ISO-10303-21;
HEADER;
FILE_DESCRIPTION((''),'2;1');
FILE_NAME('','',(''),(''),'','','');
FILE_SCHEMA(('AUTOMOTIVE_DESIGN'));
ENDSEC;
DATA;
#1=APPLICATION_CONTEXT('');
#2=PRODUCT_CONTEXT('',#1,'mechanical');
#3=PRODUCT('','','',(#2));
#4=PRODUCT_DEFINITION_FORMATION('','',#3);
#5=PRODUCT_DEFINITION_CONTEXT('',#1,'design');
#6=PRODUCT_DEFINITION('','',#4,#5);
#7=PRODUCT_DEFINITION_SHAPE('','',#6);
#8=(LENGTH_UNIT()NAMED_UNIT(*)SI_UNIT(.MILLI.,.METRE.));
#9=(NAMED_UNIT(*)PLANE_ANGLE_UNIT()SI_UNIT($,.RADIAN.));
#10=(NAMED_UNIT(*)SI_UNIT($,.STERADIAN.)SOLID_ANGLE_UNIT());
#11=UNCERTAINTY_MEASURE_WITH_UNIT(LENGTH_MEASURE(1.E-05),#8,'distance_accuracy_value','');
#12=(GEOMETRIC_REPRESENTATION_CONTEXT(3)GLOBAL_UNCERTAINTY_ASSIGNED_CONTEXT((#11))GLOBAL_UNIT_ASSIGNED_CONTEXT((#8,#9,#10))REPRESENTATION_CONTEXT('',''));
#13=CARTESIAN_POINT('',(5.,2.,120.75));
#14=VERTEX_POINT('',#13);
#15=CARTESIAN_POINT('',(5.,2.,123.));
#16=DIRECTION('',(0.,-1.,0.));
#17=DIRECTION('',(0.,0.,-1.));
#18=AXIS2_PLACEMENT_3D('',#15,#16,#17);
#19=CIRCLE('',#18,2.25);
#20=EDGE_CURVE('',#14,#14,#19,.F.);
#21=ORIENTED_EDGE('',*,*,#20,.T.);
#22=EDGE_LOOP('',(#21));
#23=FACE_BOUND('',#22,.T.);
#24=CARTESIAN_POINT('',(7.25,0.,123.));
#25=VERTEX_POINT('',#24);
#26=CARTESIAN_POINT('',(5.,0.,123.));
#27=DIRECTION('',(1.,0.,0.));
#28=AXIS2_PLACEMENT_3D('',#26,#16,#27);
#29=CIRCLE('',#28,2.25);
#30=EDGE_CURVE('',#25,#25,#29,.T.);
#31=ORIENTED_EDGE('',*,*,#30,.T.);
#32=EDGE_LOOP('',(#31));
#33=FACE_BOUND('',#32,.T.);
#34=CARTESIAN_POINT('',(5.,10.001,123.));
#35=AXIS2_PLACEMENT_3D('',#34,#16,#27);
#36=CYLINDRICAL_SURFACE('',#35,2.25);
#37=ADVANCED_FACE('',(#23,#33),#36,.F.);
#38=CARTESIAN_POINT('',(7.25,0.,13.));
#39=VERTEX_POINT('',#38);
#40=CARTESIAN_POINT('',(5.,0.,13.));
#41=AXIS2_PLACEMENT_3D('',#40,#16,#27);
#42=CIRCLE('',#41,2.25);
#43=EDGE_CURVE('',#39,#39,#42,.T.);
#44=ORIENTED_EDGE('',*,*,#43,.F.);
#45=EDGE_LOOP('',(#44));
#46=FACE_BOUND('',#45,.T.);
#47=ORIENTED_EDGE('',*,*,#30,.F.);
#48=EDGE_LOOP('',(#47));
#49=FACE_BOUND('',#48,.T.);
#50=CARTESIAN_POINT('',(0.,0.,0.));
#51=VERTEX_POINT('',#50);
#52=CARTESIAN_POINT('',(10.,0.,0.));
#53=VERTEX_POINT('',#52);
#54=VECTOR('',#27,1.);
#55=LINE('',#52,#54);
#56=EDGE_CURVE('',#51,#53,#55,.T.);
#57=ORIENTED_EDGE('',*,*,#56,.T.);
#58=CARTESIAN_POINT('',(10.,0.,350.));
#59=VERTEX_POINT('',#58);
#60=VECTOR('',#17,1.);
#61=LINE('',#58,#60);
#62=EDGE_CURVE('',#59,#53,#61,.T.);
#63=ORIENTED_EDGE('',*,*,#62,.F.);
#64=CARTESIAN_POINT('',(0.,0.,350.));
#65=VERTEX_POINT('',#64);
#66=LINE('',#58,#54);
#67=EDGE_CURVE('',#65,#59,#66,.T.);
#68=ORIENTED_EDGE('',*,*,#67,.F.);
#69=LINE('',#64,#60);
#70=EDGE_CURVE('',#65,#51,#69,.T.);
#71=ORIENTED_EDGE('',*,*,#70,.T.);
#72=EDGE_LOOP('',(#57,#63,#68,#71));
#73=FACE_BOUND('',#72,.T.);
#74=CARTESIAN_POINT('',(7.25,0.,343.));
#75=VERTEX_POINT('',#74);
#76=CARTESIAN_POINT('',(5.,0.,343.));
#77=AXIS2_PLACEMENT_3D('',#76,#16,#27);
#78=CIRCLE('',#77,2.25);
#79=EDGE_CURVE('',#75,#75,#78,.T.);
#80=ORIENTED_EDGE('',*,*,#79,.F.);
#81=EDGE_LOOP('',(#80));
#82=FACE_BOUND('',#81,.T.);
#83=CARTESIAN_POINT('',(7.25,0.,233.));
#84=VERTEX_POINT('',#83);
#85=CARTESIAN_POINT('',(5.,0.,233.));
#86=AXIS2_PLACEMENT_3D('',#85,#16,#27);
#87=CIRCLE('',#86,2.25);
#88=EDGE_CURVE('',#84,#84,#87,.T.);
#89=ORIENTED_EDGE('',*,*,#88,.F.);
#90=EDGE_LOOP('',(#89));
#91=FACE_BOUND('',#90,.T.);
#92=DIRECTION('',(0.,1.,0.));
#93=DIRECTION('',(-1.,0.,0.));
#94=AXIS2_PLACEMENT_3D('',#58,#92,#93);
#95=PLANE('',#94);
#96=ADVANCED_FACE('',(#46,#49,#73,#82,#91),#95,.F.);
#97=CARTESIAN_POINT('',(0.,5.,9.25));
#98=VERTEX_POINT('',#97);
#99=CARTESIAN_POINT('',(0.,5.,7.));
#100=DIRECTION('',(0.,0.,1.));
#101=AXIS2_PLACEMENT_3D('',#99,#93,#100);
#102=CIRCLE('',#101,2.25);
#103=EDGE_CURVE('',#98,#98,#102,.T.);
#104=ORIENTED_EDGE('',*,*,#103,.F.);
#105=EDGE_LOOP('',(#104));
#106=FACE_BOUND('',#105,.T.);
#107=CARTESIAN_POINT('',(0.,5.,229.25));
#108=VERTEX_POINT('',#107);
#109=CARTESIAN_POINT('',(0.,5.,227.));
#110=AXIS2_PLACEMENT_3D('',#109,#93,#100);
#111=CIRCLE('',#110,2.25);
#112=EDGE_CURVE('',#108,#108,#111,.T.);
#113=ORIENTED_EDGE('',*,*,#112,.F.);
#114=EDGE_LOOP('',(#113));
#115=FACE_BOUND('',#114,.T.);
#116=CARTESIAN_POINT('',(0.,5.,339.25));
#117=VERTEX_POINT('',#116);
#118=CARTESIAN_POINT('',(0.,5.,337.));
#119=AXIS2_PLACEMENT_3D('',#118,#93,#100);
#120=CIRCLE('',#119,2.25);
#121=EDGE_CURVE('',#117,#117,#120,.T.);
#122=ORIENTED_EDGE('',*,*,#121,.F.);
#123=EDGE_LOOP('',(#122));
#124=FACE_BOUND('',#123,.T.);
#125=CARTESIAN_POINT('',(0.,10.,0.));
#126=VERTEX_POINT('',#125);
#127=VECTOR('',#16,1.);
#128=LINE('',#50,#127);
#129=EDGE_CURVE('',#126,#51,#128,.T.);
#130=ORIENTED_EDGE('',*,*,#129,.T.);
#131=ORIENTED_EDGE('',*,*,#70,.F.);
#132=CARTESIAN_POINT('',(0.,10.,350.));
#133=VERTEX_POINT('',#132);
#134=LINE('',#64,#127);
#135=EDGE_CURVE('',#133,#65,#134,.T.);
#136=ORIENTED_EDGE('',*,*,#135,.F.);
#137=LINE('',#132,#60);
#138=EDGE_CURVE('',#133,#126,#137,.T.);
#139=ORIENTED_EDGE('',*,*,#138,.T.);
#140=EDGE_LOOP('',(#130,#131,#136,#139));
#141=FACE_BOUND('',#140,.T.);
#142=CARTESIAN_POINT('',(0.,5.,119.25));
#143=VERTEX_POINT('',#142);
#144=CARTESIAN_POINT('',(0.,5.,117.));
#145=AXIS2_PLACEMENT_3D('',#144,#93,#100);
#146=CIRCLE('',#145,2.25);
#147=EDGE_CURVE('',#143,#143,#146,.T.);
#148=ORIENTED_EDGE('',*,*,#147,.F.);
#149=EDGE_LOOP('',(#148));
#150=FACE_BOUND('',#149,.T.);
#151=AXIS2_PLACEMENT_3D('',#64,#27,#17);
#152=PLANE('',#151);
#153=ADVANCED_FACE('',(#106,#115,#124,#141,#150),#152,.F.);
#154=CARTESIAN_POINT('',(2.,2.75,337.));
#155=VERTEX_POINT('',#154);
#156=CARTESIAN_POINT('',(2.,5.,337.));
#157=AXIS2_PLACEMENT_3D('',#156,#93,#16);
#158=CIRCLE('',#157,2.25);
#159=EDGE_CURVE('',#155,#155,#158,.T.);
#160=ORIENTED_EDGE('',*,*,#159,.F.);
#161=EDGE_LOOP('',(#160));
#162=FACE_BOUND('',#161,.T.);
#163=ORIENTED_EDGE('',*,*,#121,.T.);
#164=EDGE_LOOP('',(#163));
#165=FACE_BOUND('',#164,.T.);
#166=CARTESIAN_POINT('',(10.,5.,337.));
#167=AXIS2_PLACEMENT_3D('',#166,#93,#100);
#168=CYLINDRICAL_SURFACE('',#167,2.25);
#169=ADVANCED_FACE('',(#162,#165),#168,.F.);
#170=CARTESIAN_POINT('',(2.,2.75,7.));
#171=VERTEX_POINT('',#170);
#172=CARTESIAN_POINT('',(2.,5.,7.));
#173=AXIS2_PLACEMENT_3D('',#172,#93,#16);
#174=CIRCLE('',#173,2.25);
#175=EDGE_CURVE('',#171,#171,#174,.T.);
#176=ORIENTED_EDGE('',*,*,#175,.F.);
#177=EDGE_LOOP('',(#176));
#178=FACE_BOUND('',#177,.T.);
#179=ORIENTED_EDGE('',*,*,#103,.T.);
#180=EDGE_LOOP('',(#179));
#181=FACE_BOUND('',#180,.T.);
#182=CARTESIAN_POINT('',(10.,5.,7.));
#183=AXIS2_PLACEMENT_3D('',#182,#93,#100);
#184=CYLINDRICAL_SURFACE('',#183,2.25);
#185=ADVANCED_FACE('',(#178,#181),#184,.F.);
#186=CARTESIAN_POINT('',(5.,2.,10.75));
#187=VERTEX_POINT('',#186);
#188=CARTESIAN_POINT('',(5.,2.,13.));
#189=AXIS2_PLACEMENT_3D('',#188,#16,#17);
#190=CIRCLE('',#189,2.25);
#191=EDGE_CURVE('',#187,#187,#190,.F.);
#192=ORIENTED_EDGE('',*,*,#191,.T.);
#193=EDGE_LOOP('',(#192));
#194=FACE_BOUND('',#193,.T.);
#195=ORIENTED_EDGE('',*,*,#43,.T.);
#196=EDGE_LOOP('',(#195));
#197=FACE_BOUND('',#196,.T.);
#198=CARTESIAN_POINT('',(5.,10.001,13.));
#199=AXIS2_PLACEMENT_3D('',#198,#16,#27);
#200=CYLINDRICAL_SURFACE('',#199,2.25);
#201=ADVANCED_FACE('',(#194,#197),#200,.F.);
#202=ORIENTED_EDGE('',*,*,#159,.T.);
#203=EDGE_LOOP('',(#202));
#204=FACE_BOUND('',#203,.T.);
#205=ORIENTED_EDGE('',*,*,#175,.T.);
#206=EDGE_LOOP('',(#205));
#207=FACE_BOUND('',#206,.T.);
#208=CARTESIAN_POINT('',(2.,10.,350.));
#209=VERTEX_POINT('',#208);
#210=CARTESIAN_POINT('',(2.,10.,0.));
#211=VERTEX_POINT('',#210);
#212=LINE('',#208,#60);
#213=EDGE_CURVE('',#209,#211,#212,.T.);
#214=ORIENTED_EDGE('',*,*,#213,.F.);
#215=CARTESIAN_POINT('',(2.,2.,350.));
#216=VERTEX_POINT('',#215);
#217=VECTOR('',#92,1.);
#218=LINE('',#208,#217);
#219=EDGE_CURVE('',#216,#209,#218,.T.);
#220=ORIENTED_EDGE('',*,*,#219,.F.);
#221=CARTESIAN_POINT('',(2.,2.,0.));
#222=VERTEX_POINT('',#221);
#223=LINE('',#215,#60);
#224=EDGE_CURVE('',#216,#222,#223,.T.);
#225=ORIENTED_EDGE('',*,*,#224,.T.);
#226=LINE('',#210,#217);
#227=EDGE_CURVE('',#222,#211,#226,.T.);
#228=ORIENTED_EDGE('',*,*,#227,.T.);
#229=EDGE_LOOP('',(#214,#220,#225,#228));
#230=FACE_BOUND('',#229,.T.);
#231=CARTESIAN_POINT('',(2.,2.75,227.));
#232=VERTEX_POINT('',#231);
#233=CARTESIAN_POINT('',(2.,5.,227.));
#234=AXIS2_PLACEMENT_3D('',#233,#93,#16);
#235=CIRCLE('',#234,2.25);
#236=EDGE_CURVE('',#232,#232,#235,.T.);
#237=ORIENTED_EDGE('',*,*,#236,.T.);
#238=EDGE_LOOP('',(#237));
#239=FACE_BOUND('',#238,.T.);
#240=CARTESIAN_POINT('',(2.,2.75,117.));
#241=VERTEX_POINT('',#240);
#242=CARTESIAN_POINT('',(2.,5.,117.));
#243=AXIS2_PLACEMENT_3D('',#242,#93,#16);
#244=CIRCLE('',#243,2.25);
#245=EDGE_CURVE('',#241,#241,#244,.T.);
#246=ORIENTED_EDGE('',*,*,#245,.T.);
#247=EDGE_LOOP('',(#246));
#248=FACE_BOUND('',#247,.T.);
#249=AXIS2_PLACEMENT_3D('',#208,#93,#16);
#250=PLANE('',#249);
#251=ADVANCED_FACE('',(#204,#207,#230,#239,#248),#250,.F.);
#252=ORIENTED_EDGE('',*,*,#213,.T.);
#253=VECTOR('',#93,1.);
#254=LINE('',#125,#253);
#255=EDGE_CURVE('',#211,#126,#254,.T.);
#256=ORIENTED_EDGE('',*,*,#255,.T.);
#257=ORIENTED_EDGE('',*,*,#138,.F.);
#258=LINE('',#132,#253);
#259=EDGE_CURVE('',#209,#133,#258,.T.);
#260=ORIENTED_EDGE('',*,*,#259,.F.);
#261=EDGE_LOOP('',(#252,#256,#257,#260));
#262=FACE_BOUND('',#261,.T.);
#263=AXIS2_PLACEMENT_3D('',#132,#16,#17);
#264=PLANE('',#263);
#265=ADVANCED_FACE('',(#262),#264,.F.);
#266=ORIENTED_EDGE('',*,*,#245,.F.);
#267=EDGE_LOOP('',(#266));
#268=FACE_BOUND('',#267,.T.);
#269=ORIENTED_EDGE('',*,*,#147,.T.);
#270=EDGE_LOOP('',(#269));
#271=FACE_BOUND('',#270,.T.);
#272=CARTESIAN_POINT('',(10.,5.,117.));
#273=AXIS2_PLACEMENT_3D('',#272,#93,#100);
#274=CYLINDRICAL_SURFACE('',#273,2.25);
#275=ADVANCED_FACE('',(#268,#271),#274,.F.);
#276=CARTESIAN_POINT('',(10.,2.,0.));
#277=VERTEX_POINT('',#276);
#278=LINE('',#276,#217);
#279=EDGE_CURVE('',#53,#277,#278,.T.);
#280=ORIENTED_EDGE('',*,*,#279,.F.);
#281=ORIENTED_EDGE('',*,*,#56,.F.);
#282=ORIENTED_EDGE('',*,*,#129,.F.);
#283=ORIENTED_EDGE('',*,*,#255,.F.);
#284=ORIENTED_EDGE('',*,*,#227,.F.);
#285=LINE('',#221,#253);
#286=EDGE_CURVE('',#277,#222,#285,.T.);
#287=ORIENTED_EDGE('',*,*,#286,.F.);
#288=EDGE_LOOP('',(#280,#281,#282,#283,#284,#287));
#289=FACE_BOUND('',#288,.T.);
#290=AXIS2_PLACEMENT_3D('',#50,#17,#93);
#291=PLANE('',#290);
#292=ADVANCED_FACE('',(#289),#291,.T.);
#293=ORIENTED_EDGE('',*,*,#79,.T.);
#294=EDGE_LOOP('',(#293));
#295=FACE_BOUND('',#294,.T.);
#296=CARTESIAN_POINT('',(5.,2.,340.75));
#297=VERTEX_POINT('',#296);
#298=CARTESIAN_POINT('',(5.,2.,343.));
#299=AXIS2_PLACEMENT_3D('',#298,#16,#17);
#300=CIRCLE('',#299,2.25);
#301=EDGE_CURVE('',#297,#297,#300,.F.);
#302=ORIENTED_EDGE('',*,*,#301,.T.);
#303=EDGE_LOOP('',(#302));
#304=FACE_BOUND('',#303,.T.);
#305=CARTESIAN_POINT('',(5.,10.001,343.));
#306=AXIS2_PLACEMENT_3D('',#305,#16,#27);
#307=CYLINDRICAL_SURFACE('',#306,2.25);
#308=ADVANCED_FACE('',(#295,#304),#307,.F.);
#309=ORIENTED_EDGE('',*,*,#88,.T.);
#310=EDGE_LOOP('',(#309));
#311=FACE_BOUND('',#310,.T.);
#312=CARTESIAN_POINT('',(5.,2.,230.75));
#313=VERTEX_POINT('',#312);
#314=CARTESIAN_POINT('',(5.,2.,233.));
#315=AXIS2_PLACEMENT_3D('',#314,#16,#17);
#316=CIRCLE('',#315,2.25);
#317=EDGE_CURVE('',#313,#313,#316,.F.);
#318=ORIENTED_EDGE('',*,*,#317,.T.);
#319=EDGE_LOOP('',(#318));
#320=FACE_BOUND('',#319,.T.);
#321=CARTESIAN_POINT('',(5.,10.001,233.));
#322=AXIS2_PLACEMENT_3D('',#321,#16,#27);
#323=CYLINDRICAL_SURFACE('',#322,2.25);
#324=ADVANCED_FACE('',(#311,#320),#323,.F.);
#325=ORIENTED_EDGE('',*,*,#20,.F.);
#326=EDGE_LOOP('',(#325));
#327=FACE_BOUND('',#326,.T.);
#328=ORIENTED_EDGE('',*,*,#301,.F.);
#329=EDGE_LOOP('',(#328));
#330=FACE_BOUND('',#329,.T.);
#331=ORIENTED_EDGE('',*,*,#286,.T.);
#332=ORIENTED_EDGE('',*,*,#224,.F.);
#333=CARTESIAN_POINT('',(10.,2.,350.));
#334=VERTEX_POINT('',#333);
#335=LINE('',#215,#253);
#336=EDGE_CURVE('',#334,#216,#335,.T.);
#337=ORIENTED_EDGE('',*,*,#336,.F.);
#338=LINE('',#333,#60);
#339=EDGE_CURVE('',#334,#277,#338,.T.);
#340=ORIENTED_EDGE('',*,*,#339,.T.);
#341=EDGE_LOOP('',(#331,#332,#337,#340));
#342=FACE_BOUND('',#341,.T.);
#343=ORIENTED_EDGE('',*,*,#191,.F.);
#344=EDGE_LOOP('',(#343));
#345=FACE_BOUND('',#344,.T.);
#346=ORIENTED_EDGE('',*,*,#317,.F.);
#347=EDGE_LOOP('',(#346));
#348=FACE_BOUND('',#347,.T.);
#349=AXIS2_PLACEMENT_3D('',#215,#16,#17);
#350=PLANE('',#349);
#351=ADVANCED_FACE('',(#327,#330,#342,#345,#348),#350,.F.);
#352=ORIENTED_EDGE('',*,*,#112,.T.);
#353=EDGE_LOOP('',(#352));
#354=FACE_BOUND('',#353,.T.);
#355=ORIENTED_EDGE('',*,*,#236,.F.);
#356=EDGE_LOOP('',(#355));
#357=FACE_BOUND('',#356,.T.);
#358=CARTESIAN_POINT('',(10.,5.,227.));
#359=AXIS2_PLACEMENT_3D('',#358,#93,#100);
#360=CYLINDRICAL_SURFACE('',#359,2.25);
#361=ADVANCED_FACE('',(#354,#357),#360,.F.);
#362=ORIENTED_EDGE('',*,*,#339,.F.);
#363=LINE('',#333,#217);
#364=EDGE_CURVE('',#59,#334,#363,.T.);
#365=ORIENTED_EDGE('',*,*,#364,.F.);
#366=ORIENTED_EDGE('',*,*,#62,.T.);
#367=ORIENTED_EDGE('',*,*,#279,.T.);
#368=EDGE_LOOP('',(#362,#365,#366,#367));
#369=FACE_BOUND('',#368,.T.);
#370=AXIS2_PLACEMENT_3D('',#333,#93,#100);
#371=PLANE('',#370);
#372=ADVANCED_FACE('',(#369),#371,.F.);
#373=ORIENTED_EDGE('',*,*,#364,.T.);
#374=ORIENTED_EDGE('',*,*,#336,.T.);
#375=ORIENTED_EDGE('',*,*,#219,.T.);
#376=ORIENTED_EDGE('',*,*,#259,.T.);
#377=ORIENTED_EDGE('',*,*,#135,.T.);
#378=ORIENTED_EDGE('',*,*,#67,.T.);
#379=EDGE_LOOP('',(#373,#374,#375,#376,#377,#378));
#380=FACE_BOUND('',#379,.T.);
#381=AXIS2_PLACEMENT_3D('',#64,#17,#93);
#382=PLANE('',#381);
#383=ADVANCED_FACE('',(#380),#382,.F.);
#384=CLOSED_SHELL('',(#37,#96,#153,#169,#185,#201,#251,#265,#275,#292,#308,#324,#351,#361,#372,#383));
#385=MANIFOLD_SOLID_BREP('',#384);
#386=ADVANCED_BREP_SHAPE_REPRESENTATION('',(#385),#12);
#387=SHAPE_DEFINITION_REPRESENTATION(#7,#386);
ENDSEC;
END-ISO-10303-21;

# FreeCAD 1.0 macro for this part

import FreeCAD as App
import Part
import Sketcher

V = App.Vector
Q = App.Units.Quantity


def add_polygon(sketch, points):
    """Adds a closed chain of lines whose ends are joined by coincident constraints."""
    first, n = sketch.GeometryCount, len(points)
    for a, b in zip(points, points[1:] + points[:1]):
        sketch.addGeometry(Part.LineSegment(App.Vector(*a, 0), App.Vector(*b, 0)), False)
    for i in range(n):
        sketch.addConstraint(Sketcher.Constraint("Coincident", first + i, 2, first + (i + 1) % n, 1))

doc = App.newDocument("Part")
params = doc.addObject("Spreadsheet::Sheet", "Params")
for row, (alias, value) in enumerate([
    ("sketch1_width", "10 mm"),
    ("sketch1_width2", "8 mm"),
    ("pad1_length", "350 mm"),
    ("sketch2_diameter", "4.5 mm"),
    ("sketch3_diameter", "4.5 mm"),
    ("sketch4_diameter", "4.5 mm"),
    ("sketch5_diameter", "4.5 mm"),
    ("sketch6_diameter", "4.5 mm"),
], start=1):
    params.set(f"A{row}", alias)
    params.set(f"B{row}", "=" + value)
    params.setAlias(f"B{row}", alias)

body = doc.addObject("PartDesign::Body", "Body")

# Sketch on XY plane
sketch1 = body.newObject("Sketcher::SketchObject", "Sketch")
sketch1.AttachmentSupport = (doc.getObject("XY_Plane"), [""])
sketch1.MapMode = "FlatFace"
add_polygon(sketch1, [(0, 10), (0, 0), (10, 0), (10, 2), (2, 2), (2, 10)])  # lines 0-5
sketch1.addConstraint([
    Sketcher.Constraint("Vertical", 0),
    Sketcher.Constraint("Horizontal", 1),
    Sketcher.Constraint("Vertical", 2),
    Sketcher.Constraint("Horizontal", 3),
    Sketcher.Constraint("Vertical", 4),
    Sketcher.Constraint("Horizontal", 5),
    Sketcher.Constraint("Coincident", 0, 2, -1, 1),
    Sketcher.Constraint("Equal", 1, 0),
    Sketcher.Constraint("Equal", 5, 2),
    Sketcher.Constraint("DistanceX", 1, 1, 1, 2, Q("10 mm")),
    Sketcher.Constraint("DistanceX", 3, 2, 3, 1, Q("8 mm")),
])
sketch1.setExpression("Constraints[15]", "Params.sketch1_width")
sketch1.setExpression("Constraints[16]", "Params.sketch1_width2")
pad1 = body.newObject("PartDesign::Pad", "Pad")
pad1.Profile = sketch1
pad1.setExpression("Length", "Params.pad1_length")

# Sketch on YZ plane
sketch2 = body.newObject("Sketcher::SketchObject", "Sketch001")
sketch2.AttachmentSupport = (doc.getObject("YZ_Plane"), [""])
sketch2.MapMode = "FlatFace"
sketch2.addGeometry([
    Part.Circle(V(5, 7, 0), V(0, 0, 1), 2.2),
    Part.Circle(V(5, 117, 0), V(0, 0, 1), 2.2),
    Part.Circle(V(5, 227, 0), V(0, 0, 1), 2.2),
    Part.Circle(V(5, 337, 0), V(0, 0, 1), 2.2),
], False)
sketch2.addConstraint([
    Sketcher.Constraint("Equal", 0, 1),
    Sketcher.Constraint("Equal", 1, 2),
    Sketcher.Constraint("Equal", 2, 3),
    Sketcher.Constraint("Vertical", 0, 3, 1, 3),
    Sketcher.Constraint("Vertical", 1, 3, 2, 3),
    Sketcher.Constraint("Vertical", 2, 3, 3, 3),
    Sketcher.Constraint("Diameter", 0, Q("4.5 mm")),
    Sketcher.Constraint("DistanceX", -1, 1, 0, 3, Q("5 mm")),
    Sketcher.Constraint("DistanceY", -1, 1, 0, 3, Q("7 mm")),
    Sketcher.Constraint("DistanceY", -1, 1, 1, 3, Q("117 mm")),
    Sketcher.Constraint("DistanceY", -1, 1, 2, 3, Q("227 mm")),
    Sketcher.Constraint("DistanceY", -1, 1, 3, 3, Q("337 mm")),
])
sketch2.setExpression("Constraints[6]", "Params.sketch2_diameter")
pocket1 = body.newObject("PartDesign::Pocket", "Pocket")
pocket1.Profile = sketch2
pocket1.Type = "ThroughAll"
pocket1.Reversed = True

# Sketch on XZ plane
sketch3 = body.newObject("Sketcher::SketchObject", "Sketch002")
sketch3.AttachmentSupport = (doc.getObject("XZ_Plane"), [""])
sketch3.MapMode = "FlatFace"
sketch3.addGeometry(Part.Circle(V(5, 343, 0), V(0, 0, 1), 2.2), False)
sketch3.addConstraint([
    Sketcher.Constraint("Diameter", 0, Q("4.5 mm")),
    Sketcher.Constraint("DistanceX", -1, 1, 0, 3, Q("5 mm")),
    Sketcher.Constraint("DistanceY", -1, 1, 0, 3, Q("343 mm")),
])
sketch3.setExpression("Constraints[0]", "Params.sketch3_diameter")
pocket2 = body.newObject("PartDesign::Pocket", "Pocket001")
pocket2.Profile = sketch3
pocket2.Type = "UpToFirst"

# Sketch on XZ plane
sketch4 = body.newObject("Sketcher::SketchObject", "Sketch003")
sketch4.AttachmentSupport = (doc.getObject("XZ_Plane"), [""])
sketch4.MapMode = "FlatFace"
sketch4.addGeometry(Part.Circle(V(5, 233, 0), V(0, 0, 1), 2.2), False)
sketch4.addConstraint([
    Sketcher.Constraint("Diameter", 0, Q("4.5 mm")),
    Sketcher.Constraint("DistanceX", -1, 1, 0, 3, Q("5 mm")),
    Sketcher.Constraint("DistanceY", -1, 1, 0, 3, Q("233 mm")),
])
sketch4.setExpression("Constraints[0]", "Params.sketch4_diameter")
pocket3 = body.newObject("PartDesign::Pocket", "Pocket002")
pocket3.Profile = sketch4
pocket3.Type = "UpToFirst"

# Sketch on XZ plane
sketch5 = body.newObject("Sketcher::SketchObject", "Sketch004")
sketch5.AttachmentSupport = (doc.getObject("XZ_Plane"), [""])
sketch5.MapMode = "FlatFace"
sketch5.addGeometry(Part.Circle(V(5, 123, 0), V(0, 0, 1), 2.2), False)
sketch5.addConstraint([
    Sketcher.Constraint("Diameter", 0, Q("4.5 mm")),
    Sketcher.Constraint("DistanceX", -1, 1, 0, 3, Q("5 mm")),
    Sketcher.Constraint("DistanceY", -1, 1, 0, 3, Q("123 mm")),
])
sketch5.setExpression("Constraints[0]", "Params.sketch5_diameter")
pocket4 = body.newObject("PartDesign::Pocket", "Pocket003")
pocket4.Profile = sketch5
pocket4.Type = "UpToFirst"

# Sketch on XZ plane
sketch6 = body.newObject("Sketcher::SketchObject", "Sketch005")
sketch6.AttachmentSupport = (doc.getObject("XZ_Plane"), [""])
sketch6.MapMode = "FlatFace"
sketch6.addGeometry(Part.Circle(V(5, 13, 0), V(0, 0, 1), 2.2), False)
sketch6.addConstraint([
    Sketcher.Constraint("Diameter", 0, Q("4.5 mm")),
    Sketcher.Constraint("DistanceX", -1, 1, 0, 3, Q("5 mm")),
    Sketcher.Constraint("DistanceY", -1, 1, 0, 3, Q("13 mm")),
])
sketch6.setExpression("Constraints[0]", "Params.sketch6_diameter")
pocket5 = body.newObject("PartDesign::Pocket", "Pocket004")
pocket5.Profile = sketch6
pocket5.Type = "UpToFirst"

doc.recompute()
